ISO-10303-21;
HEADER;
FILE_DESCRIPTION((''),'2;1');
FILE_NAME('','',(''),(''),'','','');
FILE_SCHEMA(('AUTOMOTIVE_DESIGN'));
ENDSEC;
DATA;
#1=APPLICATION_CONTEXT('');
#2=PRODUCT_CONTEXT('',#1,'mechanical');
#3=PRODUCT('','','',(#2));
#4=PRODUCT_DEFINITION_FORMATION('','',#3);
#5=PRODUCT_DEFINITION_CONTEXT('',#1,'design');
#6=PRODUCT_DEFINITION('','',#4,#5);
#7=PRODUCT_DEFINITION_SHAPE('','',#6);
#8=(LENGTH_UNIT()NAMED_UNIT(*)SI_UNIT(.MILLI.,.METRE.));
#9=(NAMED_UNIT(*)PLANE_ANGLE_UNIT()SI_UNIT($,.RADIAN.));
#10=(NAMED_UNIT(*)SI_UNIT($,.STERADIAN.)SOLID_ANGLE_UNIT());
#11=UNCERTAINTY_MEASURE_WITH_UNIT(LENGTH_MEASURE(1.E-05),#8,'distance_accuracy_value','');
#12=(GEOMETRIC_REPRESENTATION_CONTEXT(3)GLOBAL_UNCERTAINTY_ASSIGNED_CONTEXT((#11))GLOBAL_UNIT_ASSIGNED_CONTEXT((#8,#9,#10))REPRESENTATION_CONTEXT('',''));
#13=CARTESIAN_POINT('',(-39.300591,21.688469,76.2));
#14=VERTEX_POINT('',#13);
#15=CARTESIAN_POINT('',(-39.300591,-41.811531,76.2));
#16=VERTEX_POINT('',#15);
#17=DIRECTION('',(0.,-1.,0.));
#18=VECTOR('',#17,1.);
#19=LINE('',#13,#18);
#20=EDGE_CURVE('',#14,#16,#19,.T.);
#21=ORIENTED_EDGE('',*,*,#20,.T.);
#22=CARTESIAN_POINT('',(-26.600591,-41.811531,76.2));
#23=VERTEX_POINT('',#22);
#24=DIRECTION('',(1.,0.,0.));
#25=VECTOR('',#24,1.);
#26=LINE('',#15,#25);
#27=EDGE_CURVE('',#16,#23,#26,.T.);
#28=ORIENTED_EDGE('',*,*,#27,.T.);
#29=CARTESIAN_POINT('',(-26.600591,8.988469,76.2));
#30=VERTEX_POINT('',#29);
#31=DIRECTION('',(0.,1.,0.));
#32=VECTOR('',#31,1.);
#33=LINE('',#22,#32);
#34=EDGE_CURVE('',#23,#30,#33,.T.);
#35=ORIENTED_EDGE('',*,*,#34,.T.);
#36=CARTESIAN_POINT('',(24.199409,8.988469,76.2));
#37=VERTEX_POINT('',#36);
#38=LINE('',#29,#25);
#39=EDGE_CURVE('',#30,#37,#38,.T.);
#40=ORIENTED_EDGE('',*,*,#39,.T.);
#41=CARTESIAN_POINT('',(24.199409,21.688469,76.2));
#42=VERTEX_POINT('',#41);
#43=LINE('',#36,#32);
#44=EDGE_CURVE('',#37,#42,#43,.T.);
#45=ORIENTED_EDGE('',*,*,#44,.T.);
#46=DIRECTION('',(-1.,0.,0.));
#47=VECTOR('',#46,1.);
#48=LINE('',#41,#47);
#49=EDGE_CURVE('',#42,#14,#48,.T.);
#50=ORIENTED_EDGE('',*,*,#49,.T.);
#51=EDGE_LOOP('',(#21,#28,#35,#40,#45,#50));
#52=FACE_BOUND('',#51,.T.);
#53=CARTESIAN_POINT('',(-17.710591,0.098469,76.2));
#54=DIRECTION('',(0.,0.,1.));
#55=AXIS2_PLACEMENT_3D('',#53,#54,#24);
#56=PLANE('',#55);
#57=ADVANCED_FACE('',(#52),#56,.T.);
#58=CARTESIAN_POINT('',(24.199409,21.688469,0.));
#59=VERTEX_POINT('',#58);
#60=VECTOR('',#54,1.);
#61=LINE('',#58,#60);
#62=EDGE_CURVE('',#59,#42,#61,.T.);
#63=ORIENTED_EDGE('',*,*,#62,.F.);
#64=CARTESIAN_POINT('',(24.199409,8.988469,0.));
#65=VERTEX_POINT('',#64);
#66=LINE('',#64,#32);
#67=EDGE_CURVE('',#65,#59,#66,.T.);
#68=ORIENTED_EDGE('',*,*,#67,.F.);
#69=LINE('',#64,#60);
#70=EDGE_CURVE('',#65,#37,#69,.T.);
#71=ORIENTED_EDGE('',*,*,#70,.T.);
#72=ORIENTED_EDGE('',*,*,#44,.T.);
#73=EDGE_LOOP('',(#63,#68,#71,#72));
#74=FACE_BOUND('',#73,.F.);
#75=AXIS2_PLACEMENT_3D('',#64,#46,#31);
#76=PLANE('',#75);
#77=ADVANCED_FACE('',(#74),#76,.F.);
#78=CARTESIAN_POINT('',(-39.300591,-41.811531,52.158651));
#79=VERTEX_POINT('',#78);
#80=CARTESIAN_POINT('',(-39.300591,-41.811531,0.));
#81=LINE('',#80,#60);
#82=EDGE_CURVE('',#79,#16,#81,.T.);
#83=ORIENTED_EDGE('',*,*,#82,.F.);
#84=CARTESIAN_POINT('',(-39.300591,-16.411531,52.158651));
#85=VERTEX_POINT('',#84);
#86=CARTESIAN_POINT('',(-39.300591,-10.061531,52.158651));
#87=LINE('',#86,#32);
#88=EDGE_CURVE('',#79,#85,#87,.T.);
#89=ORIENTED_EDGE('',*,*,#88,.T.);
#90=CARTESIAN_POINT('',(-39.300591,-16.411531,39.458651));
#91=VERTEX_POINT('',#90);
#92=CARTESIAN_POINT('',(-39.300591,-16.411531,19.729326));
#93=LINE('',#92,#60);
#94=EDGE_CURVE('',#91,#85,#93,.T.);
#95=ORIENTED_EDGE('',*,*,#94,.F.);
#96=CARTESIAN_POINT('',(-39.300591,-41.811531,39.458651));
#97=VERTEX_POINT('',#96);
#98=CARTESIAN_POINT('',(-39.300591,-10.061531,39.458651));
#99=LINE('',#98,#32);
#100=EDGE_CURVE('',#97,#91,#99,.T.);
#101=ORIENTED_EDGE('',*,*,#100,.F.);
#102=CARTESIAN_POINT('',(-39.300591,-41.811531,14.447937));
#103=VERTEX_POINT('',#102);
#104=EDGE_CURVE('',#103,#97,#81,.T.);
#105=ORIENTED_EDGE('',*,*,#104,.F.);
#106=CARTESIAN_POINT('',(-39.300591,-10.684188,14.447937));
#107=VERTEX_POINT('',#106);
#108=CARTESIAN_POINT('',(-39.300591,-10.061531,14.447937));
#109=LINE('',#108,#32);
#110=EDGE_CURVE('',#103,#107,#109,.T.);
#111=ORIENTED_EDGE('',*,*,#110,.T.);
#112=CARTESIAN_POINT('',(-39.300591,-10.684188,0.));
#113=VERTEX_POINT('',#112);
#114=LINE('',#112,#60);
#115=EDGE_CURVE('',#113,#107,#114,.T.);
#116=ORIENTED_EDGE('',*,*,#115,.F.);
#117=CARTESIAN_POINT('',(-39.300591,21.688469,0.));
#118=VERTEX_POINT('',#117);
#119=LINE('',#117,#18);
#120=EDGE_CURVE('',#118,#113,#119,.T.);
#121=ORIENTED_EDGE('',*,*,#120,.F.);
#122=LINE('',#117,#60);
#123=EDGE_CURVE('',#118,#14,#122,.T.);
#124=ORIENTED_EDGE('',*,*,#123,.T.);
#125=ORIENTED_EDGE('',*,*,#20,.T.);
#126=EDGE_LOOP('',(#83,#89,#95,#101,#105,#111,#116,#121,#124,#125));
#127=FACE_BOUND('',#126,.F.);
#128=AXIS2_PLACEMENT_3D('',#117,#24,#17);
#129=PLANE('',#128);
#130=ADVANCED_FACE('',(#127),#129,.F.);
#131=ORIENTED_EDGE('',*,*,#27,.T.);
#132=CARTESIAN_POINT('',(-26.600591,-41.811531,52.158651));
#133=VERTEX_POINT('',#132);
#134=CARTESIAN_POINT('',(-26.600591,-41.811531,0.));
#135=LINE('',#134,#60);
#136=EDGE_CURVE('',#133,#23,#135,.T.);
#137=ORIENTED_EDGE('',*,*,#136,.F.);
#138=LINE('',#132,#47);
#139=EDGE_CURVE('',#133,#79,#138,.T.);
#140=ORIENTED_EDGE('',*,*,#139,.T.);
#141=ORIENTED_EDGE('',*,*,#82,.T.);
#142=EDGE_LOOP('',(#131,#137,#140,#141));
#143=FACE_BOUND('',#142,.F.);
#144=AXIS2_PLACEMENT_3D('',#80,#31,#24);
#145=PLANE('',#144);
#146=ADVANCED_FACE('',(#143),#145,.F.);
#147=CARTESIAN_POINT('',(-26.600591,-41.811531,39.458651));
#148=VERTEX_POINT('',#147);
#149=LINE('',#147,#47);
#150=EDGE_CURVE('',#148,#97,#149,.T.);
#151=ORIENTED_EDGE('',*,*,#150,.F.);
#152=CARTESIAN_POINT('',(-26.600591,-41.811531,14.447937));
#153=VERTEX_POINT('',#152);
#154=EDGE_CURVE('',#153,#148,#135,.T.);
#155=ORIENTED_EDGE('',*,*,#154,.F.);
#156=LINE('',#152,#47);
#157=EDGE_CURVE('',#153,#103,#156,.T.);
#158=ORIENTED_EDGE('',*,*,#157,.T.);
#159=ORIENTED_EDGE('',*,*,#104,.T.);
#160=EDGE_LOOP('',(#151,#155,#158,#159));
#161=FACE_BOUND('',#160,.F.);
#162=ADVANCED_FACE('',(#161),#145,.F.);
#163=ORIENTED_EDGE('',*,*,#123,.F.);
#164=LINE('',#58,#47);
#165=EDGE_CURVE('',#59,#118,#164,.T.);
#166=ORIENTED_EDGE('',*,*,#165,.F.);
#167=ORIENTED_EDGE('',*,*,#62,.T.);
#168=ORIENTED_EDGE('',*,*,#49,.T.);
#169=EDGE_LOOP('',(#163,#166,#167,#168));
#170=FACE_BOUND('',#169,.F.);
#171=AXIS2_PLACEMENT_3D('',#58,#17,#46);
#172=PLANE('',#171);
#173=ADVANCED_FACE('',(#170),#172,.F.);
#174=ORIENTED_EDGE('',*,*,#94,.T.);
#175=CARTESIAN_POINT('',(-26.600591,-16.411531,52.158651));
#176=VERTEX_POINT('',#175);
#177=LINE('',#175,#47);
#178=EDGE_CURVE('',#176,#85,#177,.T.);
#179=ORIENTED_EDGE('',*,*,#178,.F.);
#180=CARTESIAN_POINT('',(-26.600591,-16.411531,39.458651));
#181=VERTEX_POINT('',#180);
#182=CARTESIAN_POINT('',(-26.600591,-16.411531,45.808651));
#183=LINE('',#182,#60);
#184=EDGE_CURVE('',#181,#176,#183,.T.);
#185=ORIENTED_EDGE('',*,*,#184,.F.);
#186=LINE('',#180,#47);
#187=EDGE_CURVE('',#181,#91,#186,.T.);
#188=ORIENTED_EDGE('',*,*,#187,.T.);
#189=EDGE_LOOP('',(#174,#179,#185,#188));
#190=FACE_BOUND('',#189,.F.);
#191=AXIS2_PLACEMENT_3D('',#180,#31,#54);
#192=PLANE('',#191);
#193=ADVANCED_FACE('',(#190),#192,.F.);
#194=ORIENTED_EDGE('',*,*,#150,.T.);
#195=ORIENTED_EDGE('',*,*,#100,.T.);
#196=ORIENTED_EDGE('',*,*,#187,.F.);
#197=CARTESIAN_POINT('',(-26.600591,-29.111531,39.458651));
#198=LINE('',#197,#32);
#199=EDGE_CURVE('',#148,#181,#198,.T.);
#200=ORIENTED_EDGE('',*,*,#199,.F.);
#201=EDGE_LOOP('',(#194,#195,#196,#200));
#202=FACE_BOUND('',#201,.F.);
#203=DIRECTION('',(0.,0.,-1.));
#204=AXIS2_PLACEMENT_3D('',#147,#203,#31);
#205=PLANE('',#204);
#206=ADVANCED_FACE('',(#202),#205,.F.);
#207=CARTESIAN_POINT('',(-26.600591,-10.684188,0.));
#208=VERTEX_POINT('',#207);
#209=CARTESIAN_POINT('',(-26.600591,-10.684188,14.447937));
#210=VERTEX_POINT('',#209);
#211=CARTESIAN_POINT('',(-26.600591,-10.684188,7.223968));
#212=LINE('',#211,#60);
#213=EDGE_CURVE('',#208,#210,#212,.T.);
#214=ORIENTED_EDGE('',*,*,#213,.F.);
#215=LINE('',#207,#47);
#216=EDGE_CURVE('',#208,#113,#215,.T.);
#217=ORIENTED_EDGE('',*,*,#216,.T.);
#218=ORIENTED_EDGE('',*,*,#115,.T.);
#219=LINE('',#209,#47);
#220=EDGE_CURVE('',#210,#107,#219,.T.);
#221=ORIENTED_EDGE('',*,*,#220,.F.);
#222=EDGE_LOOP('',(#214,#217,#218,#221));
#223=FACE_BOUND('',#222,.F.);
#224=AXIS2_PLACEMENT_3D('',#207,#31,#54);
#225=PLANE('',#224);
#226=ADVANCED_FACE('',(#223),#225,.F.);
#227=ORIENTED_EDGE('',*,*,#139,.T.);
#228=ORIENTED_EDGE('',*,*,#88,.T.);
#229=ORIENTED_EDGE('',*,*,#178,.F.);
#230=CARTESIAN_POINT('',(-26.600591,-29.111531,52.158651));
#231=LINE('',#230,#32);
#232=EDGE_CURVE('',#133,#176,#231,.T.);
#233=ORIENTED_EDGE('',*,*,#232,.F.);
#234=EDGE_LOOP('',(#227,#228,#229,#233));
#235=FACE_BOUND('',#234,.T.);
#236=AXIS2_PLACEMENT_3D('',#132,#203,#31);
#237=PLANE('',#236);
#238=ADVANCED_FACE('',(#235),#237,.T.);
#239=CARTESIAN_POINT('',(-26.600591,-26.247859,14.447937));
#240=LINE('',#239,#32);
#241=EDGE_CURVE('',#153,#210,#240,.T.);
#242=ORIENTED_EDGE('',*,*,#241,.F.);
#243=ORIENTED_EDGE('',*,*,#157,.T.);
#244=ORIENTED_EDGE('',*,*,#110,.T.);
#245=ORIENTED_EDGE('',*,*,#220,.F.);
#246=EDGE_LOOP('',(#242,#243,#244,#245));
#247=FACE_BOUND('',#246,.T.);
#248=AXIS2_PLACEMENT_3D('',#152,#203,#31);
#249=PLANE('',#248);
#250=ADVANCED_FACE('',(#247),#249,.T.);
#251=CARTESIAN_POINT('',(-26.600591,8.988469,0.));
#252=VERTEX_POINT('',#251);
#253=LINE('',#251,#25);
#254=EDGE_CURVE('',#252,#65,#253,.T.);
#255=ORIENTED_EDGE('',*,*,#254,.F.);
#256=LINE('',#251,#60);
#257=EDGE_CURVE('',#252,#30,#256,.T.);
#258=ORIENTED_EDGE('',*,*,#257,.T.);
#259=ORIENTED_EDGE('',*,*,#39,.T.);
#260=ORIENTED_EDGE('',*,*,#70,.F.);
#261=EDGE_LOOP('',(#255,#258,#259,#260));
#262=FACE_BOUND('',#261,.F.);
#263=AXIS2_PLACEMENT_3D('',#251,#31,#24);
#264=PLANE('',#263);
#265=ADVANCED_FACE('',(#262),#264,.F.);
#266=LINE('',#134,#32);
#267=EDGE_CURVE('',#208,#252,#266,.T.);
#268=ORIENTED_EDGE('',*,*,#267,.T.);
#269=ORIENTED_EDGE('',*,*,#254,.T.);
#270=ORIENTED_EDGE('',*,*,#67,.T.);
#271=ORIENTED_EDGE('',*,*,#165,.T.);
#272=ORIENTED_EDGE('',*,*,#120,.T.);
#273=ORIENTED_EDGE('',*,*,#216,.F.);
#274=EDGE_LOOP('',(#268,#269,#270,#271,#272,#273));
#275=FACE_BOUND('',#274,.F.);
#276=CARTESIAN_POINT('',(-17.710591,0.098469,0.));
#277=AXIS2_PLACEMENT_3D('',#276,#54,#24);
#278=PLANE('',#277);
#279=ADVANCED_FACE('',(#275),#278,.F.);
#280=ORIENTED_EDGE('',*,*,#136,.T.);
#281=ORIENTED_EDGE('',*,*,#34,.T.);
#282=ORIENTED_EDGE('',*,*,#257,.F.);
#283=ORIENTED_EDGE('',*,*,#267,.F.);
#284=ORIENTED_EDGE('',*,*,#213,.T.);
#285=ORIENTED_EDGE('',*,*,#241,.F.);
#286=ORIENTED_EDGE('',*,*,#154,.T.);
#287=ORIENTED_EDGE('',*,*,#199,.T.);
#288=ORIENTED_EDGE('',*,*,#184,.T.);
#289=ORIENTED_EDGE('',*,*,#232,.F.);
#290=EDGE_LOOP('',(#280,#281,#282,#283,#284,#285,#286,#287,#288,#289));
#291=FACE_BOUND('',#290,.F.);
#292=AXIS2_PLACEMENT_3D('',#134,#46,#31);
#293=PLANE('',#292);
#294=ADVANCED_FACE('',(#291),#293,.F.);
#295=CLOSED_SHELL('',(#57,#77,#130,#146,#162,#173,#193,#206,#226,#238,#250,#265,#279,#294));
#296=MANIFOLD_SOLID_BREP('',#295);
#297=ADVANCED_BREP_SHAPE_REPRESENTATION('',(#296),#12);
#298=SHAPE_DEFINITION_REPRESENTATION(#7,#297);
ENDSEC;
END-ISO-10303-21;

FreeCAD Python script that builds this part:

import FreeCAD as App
import Part
import Sketcher
from FreeCAD import Vector
Q = App.Units.Quantity

doc = App.newDocument("Part")
body = doc.addObject("PartDesign::Body", "Body")

# Sketch on XY plane
sketch1 = body.newObject("Sketcher::SketchObject", "Sketch")
sketch1.AttachmentSupport = (doc.getObject("XY_Plane"), [""])
sketch1.MapMode = "FlatFace"
sketch1.addGeometry(Part.LineSegment(Vector(-39, 22, 0), Vector(-39, -42, 0)), False)
sketch1.addGeometry(Part.LineSegment(Vector(-39, -42, 0), Vector(-27, -42, 0)), False)
sketch1.addGeometry(Part.LineSegment(Vector(-27, -42, 0), Vector(-27, 9, 0)), False)
sketch1.addGeometry(Part.LineSegment(Vector(-27, 9, 0), Vector(24, 9, 0)), False)
sketch1.addGeometry(Part.LineSegment(Vector(24, 9, 0), Vector(24, 22, 0)), False)
sketch1.addGeometry(Part.LineSegment(Vector(24, 22, 0), Vector(-39, 22, 0)), False)
sketch1.addConstraint(Sketcher.Constraint("Coincident", 0, 2, 1, 1))
sketch1.addConstraint(Sketcher.Constraint("Coincident", 1, 2, 2, 1))
sketch1.addConstraint(Sketcher.Constraint("Coincident", 2, 2, 3, 1))
sketch1.addConstraint(Sketcher.Constraint("Coincident", 3, 2, 4, 1))
sketch1.addConstraint(Sketcher.Constraint("Coincident", 4, 2, 5, 1))
sketch1.addConstraint(Sketcher.Constraint("Coincident", 5, 2, 0, 1))
sketch1.addConstraint(Sketcher.Constraint("Vertical", 0))
sketch1.addConstraint(Sketcher.Constraint("Horizontal", 1))
sketch1.addConstraint(Sketcher.Constraint("Vertical", 2))
sketch1.addConstraint(Sketcher.Constraint("Horizontal", 3))
sketch1.addConstraint(Sketcher.Constraint("Vertical", 4))
sketch1.addConstraint(Sketcher.Constraint("Horizontal", 5))
sketch1.addConstraint(Sketcher.Constraint("Equal", 5, 0))
sketch1.addConstraint(Sketcher.Constraint("Equal", 3, 2))
sketch1.addConstraint(Sketcher.Constraint("DistanceX", 3, 1, 3, 2, Q("2 in")))
sketch1.addConstraint(Sketcher.Constraint("DistanceX", 1, 1, 1, 2, Q("0.5 in")))
sketch1.addConstraint(Sketcher.Constraint("DistanceX", 0, 2, -1, 1, Q("39.300591 mm")))
sketch1.addConstraint(Sketcher.Constraint("DistanceY", 0, 2, -1, 1, Q("41.811531 mm")))
pad1 = body.newObject("PartDesign::Pad", "Pad")
pad1.Profile = sketch1
pad1.Length = Q("3 in")

# Sketch on YZ plane
sketch2 = body.newObject("Sketcher::SketchObject", "Sketch001")
sketch2.AttachmentSupport = (doc.getObject("YZ_Plane"), [""])
sketch2.MapMode = "FlatFace"
sketch2.AttachmentOffset = App.Placement(Vector(0, 0, -26.600591), App.Rotation())
sketch2.addGeometry(Part.LineSegment(Vector(-42, 14, 0), Vector(-42, 0, 0)), False)
sketch2.addGeometry(Part.LineSegment(Vector(-42, 0, 0), Vector(-11, 0, 0)), False)
sketch2.addGeometry(Part.LineSegment(Vector(-11, 0, 0), Vector(-11, 14, 0)), False)
sketch2.addGeometry(Part.LineSegment(Vector(-11, 14, 0), Vector(-42, 14, 0)), False)
sketch2.addConstraint(Sketcher.Constraint("Coincident", 0, 2, 1, 1))
sketch2.addConstraint(Sketcher.Constraint("Coincident", 1, 2, 2, 1))
sketch2.addConstraint(Sketcher.Constraint("Coincident", 2, 2, 3, 1))
sketch2.addConstraint(Sketcher.Constraint("Coincident", 3, 2, 0, 1))
sketch2.addConstraint(Sketcher.Constraint("Vertical", 0))
sketch2.addConstraint(Sketcher.Constraint("Horizontal", 1))
sketch2.addConstraint(Sketcher.Constraint("Vertical", 2))
sketch2.addConstraint(Sketcher.Constraint("Horizontal", 3))
sketch2.addConstraint(Sketcher.Constraint("PointOnObject", 0, 2, -1))
sketch2.addConstraint(Sketcher.Constraint("DistanceX", 1, 1, 1, 2, Q("31.127343 mm")))
sketch2.addConstraint(Sketcher.Constraint("DistanceY", 0, 2, 0, 1, Q("14.447937 mm")))
sketch2.addConstraint(Sketcher.Constraint("DistanceX", 0, 2, -1, 1, Q("41.811531 mm")))
pocket1 = body.newObject("PartDesign::Pocket", "Pocket")
pocket1.Profile = sketch2
pocket1.Length = Q("1 in")

# Sketch on YZ plane
sketch3 = body.newObject("Sketcher::SketchObject", "Sketch002")
sketch3.AttachmentSupport = (doc.getObject("YZ_Plane"), [""])
sketch3.MapMode = "FlatFace"
sketch3.AttachmentOffset = App.Placement(Vector(0, 0, -26.600591), App.Rotation())
sketch3.addGeometry(Part.LineSegment(Vector(-42, 52, 0), Vector(-42, 39, 0)), False)
sketch3.addGeometry(Part.LineSegment(Vector(-42, 39, 0), Vector(-16, 39, 0)), False)
sketch3.addGeometry(Part.LineSegment(Vector(-16, 39, 0), Vector(-16, 52, 0)), False)
sketch3.addGeometry(Part.LineSegment(Vector(-16, 52, 0), Vector(-42, 52, 0)), False)
sketch3.addConstraint(Sketcher.Constraint("Coincident", 0, 2, 1, 1))
sketch3.addConstraint(Sketcher.Constraint("Coincident", 1, 2, 2, 1))
sketch3.addConstraint(Sketcher.Constraint("Coincident", 2, 2, 3, 1))
sketch3.addConstraint(Sketcher.Constraint("Coincident", 3, 2, 0, 1))
sketch3.addConstraint(Sketcher.Constraint("Vertical", 0))
sketch3.addConstraint(Sketcher.Constraint("Horizontal", 1))
sketch3.addConstraint(Sketcher.Constraint("Vertical", 2))
sketch3.addConstraint(Sketcher.Constraint("Horizontal", 3))
sketch3.addConstraint(Sketcher.Constraint("DistanceX", 1, 1, 1, 2, Q("1 in")))
sketch3.addConstraint(Sketcher.Constraint("DistanceY", 0, 2, 0, 1, Q("0.5 in")))
sketch3.addConstraint(Sketcher.Constraint("DistanceX", 0, 2, -1, 1, Q("41.811531 mm")))
sketch3.addConstraint(Sketcher.Constraint("DistanceY", -1, 1, 0, 2, Q("39.458651 mm")))
pocket2 = body.newObject("PartDesign::Pocket", "Pocket001")
pocket2.Profile = sketch3
pocket2.Length = Q("1 in")

doc.recompute()
